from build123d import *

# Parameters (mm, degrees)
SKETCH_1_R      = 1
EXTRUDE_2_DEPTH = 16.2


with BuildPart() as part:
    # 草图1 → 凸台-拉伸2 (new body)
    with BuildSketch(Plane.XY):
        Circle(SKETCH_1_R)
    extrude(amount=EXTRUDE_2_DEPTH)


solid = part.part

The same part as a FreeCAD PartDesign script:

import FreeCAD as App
import Part
import Sketcher
from FreeCAD import Vector

doc = App.newDocument("Part")
body = doc.addObject("PartDesign::Body", "Body")

# Sketch on XY plane
sketch1 = body.newObject("Sketcher::SketchObject", "Sketch")
sketch1.AttachmentSupport = (doc.getObject("XY_Plane"), [""])
sketch1.MapMode = "FlatFace"
sketch1.addGeometry(Part.Circle(Vector(0, 0, 0), Vector(0, 0, 1), 1), False)
sketch1.addConstraint([
    Sketcher.Constraint("Coincident", 0, 3, -1, 1),
    Sketcher.Constraint("Diameter", 0, 2.0),
])
pad1 = body.newObject("PartDesign::Pad", "Pad")
pad1.Profile = sketch1
pad1.Length = 16.2

doc.recompute()
